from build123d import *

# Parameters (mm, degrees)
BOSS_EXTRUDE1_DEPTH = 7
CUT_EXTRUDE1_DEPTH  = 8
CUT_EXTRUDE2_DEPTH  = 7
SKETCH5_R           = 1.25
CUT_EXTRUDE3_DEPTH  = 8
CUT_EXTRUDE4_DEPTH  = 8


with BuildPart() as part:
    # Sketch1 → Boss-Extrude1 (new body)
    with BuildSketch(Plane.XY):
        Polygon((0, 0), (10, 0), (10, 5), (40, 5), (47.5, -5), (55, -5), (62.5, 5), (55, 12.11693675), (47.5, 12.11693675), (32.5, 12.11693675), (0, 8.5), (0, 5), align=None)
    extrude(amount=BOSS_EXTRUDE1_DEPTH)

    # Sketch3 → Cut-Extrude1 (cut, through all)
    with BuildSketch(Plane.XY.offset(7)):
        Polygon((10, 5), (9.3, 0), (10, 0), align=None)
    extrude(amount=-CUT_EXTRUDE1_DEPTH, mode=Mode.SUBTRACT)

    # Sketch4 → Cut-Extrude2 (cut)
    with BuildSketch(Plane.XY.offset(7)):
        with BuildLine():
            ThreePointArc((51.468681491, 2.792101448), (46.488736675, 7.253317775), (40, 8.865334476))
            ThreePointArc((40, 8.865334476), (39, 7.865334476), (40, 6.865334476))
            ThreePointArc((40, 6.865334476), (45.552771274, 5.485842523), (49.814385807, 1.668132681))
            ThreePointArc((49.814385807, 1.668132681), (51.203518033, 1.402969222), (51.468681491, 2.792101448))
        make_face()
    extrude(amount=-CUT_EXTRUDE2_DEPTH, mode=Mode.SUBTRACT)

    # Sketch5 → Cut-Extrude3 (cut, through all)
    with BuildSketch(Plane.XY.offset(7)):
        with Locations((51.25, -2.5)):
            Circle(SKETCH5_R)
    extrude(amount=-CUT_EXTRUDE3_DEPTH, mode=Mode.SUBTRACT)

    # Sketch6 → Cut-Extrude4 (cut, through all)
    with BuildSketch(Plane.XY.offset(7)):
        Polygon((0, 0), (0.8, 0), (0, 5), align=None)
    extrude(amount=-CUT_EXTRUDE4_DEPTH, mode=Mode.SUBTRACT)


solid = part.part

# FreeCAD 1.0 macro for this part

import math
import FreeCAD as App
import Part
import Sketcher
from FreeCAD import Vector


def add_polygon(sketch, points):
    """Adds a closed chain of lines whose ends are joined by coincident constraints."""
    first, n = sketch.GeometryCount, len(points)
    for a, b in zip(points, points[1:] + points[:1]):
        sketch.addGeometry(Part.LineSegment(App.Vector(*a, 0), App.Vector(*b, 0)), False)
    for i in range(n):
        sketch.addConstraint(Sketcher.Constraint("Coincident", first + i, 2, first + (i + 1) % n, 1))

doc = App.newDocument("Part")
body = doc.addObject("PartDesign::Body", "Body")

# Sketch on XY plane
sketch1 = body.newObject("Sketcher::SketchObject", "Sketch")
sketch1.AttachmentSupport = (doc.getObject("XY_Plane"), [""])
sketch1.MapMode = "FlatFace"
add_polygon(sketch1, [(0, 0), (10, 0), (10, 5), (40, 5), (48, -5), (55, -5), (62, 5), (55, 12), (32, 12), (0, 8)])  # lines 0-9
sketch1.addConstraint(Sketcher.Constraint("Horizontal", 0))
sketch1.addConstraint(Sketcher.Constraint("Vertical", 1))
sketch1.addConstraint(Sketcher.Constraint("Horizontal", 2))
sketch1.addConstraint(Sketcher.Constraint("Horizontal", 4))
sketch1.addConstraint(Sketcher.Constraint("Horizontal", 7))
sketch1.addConstraint(Sketcher.Constraint("Vertical", 9))
sketch1.addConstraint(Sketcher.Constraint("Coincident", 9, 2, -1, 1))
sketch1.addConstraint(Sketcher.Constraint("Horizontal", 2, 2, 5, 2))
sketch1.addConstraint(Sketcher.Constraint("Vertical", 4, 2, 6, 2))
sketch1.addConstraint(Sketcher.Constraint("Equal", 3, 5))
sketch1.addConstraint(Sketcher.Constraint("DistanceX", 0, 1, 0, 2, 10.0))
sketch1.addConstraint(Sketcher.Constraint("DistanceX", 2, 1, 2, 2, 30.0))
sketch1.addConstraint(Sketcher.Constraint("DistanceY", 1, 1, 1, 2, 5.0))
sketch1.addConstraint(Sketcher.Constraint("DistanceX", 4, 1, 4, 2, 7.5))
sketch1.addConstraint(Sketcher.Constraint("DistanceX", 7, 2, 7, 1, 22.5))
sketch1.addConstraint(Sketcher.Constraint("DistanceY", 9, 2, 9, 1, 8.5))
sketch1.addConstraint(Sketcher.Constraint("DistanceY", 3, 2, -1, 1, 5.0))
sketch1.addConstraint(Sketcher.Constraint("DistanceX", -1, 1, 4, 2, 55.0))
sketch1.addConstraint(Sketcher.Constraint("Distance", 6, 10.339284))
pad1 = body.newObject("PartDesign::Pad", "Pad")
pad1.Profile = sketch1
pad1.Length = 7

# Sketch on XY plane
sketch2 = body.newObject("Sketcher::SketchObject", "Sketch001")
sketch2.AttachmentSupport = (doc.getObject("XY_Plane"), [""])
sketch2.MapMode = "FlatFace"
sketch2.AttachmentOffset = App.Placement(Vector(0, 0, 7), App.Rotation())
add_polygon(sketch2, [(10, 5), (9.3, 0), (10, 0)])  # lines 0-2
sketch2.addConstraint(Sketcher.Constraint("Horizontal", 1))
sketch2.addConstraint(Sketcher.Constraint("Vertical", 2))
sketch2.addConstraint(Sketcher.Constraint("PointOnObject", 0, 2, -1))
sketch2.addConstraint(Sketcher.Constraint("DistanceY", 2, 1, 2, 2, 5.0))
sketch2.addConstraint(Sketcher.Constraint("DistanceX", 1, 1, 1, 2, 0.7))
sketch2.addConstraint(Sketcher.Constraint("DistanceX", -1, 1, 1, 2, 10.0))
pocket1 = body.newObject("PartDesign::Pocket", "Pocket")
pocket1.Profile = sketch2
pocket1.Type = "ThroughAll"

# Sketch on XY plane
sketch3 = body.newObject("Sketcher::SketchObject", "Sketch002")
sketch3.AttachmentSupport = (doc.getObject("XY_Plane"), [""])
sketch3.MapMode = "FlatFace"
sketch3.AttachmentOffset = App.Placement(Vector(0, 0, 7), App.Rotation())
sketch3.addGeometry(Part.ArcOfCircle(Part.Circle(Vector(40, -5, 0), Vector(0, 0, 1), 13.9), math.radians(34), math.radians(90)), False)
sketch3.addGeometry(Part.ArcOfCircle(Part.Circle(Vector(40, 7.9, 0), Vector(0, 0, 1), 1), math.radians(90), math.radians(270)), False)
sketch3.addGeometry(Part.ArcOfCircle(Part.Circle(Vector(40, -5, 0), Vector(0, 0, 1), 11.9), math.radians(34), math.radians(90)), False)
sketch3.addGeometry(Part.ArcOfCircle(Part.Circle(Vector(50.6, 2.2, 0), Vector(0, 0, 1), 1), math.radians(-146), math.radians(34)), False)
sketch3.addConstraint(Sketcher.Constraint("Tangent", 0, 2, 1, 1))
sketch3.addConstraint(Sketcher.Constraint("Tangent", 1, 2, 2, 2))
sketch3.addConstraint(Sketcher.Constraint("Tangent", 2, 1, 3, 1))
sketch3.addConstraint(Sketcher.Constraint("Tangent", 3, 2, 0, 1))
sketch3.addConstraint(Sketcher.Constraint("Coincident", 2, 3, 0, 3))
sketch3.addConstraint(Sketcher.Constraint("Vertical", 0, 3, 1, 3))
sketch3.addConstraint(Sketcher.Constraint("Radius", 1, 1.0))
sketch3.addConstraint(Sketcher.Constraint("DistanceX", -1, 1, 0, 3, 40.0))
sketch3.addConstraint(Sketcher.Constraint("DistanceY", 0, 3, -1, 1, 5.0))
sketch3.addConstraint(Sketcher.Constraint("Radius", 0, 13.865334))
sketch3.addConstraint(Sketcher.Constraint("DistanceY", -1, 1, 3, 2, 2.792101))
pocket2 = body.newObject("PartDesign::Pocket", "Pocket001")
pocket2.Profile = sketch3
pocket2.Length = 7

# Sketch on XY plane
sketch4 = body.newObject("Sketcher::SketchObject", "Sketch003")
sketch4.AttachmentSupport = (doc.getObject("XY_Plane"), [""])
sketch4.MapMode = "FlatFace"
sketch4.AttachmentOffset = App.Placement(Vector(0, 0, 7), App.Rotation())
sketch4.addGeometry(Part.Circle(Vector(51.2, -2.5, 0), Vector(0, 0, 1), 1.2), False)
sketch4.addConstraint(Sketcher.Constraint("Diameter", 0, 2.5))
sketch4.addConstraint(Sketcher.Constraint("DistanceY", 0, 3, -1, 1, 2.5))
sketch4.addConstraint(Sketcher.Constraint("DistanceX", -1, 1, 0, 3, 51.25))
pocket3 = body.newObject("PartDesign::Pocket", "Pocket002")
pocket3.Profile = sketch4
pocket3.Type = "ThroughAll"

# Sketch on XY plane
sketch5 = body.newObject("Sketcher::SketchObject", "Sketch004")
sketch5.AttachmentSupport = (doc.getObject("XY_Plane"), [""])
sketch5.MapMode = "FlatFace"
sketch5.AttachmentOffset = App.Placement(Vector(0, 0, 7), App.Rotation())
add_polygon(sketch5, [(0, 0), (0.8, 0), (0, 5)])  # lines 0-2
sketch5.addConstraint(Sketcher.Constraint("Horizontal", 0))
sketch5.addConstraint(Sketcher.Constraint("Vertical", 2))
sketch5.addConstraint(Sketcher.Constraint("Coincident", 2, 2, -1, 1))
sketch5.addConstraint(Sketcher.Constraint("DistanceY", 2, 2, 2, 1, 5.0))
sketch5.addConstraint(Sketcher.Constraint("DistanceX", 0, 1, 0, 2, 0.8))
pocket4 = body.newObject("PartDesign::Pocket", "Pocket003")
pocket4.Profile = sketch5
pocket4.Type = "ThroughAll"

doc.recompute()
